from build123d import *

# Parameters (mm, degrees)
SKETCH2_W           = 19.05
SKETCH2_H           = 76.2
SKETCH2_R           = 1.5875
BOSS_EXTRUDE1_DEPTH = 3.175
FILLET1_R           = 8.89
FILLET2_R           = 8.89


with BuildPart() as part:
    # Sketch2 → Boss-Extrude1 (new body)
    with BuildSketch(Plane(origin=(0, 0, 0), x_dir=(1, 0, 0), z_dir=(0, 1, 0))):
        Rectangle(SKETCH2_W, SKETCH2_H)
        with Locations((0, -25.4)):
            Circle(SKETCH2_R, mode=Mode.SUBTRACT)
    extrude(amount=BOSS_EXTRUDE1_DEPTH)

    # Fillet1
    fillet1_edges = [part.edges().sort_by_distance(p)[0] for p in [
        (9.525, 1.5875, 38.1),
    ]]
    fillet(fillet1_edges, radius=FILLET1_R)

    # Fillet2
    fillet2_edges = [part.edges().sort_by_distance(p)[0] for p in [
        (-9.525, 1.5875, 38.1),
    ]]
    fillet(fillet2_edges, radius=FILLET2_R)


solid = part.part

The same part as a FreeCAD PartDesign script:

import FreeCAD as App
import Part
import Sketcher
from FreeCAD import Vector
Q = App.Units.Quantity


def edges_at(feature, points):
    """Names of the edges that pass closest to the given points."""
    edges = feature.Shape.Edges
    near = lambda p: min(range(len(edges)), key=lambda i: edges[i].distToShape(Part.Vertex(*p))[0])
    return sorted({f"Edge{near(p) + 1}" for p in points})


def add_polygon(sketch, points):
    """Adds a closed chain of lines whose ends are joined by coincident constraints."""
    first, n = sketch.GeometryCount, len(points)
    for a, b in zip(points, points[1:] + points[:1]):
        sketch.addGeometry(Part.LineSegment(App.Vector(*a, 0), App.Vector(*b, 0)), False)
    for i in range(n):
        sketch.addConstraint(Sketcher.Constraint("Coincident", first + i, 2, first + (i + 1) % n, 1))

doc = App.newDocument("Part")
params = doc.addObject("Spreadsheet::Sheet", "Params")
for row, (alias, value) in enumerate([
    ("sketch1_height", "3 in"),
    ("sketch1_diameter", "0.125 in"),
    ("sketch1_width", "0.75 in"),
    ("pad1_length", "0.125 in"),
    ("fillet_radius", "0.35 in"),
    ("fillet2_radius", "0.35 in"),
], start=1):
    params.set(f"A{row}", alias)
    params.set(f"B{row}", "=" + value)
    params.setAlias(f"B{row}", alias)

body = doc.addObject("PartDesign::Body", "Body")

# Sketch on XZ plane
sketch1 = body.newObject("Sketcher::SketchObject", "Sketch")
sketch1.AttachmentSupport = (doc.getObject("XZ_Plane"), [""])
sketch1.MapMode = "FlatFace"
add_polygon(sketch1, [(-9.5, -38.1), (-9.5, 38.1), (9.5, 38.1), (9.5, -38.1)])  # lines 0-3
sketch1.addGeometry(Part.Circle(Vector(0, 25.4, 0), Vector(0, 0, 1), 1.6), False)  # 4
sketch1.addConstraint(Sketcher.Constraint("Vertical", 0))
sketch1.addConstraint(Sketcher.Constraint("Horizontal", 1))
sketch1.addConstraint(Sketcher.Constraint("Vertical", 2))
sketch1.addConstraint(Sketcher.Constraint("Horizontal", 3))
sketch1.addConstraint(Sketcher.Constraint("Symmetric", 0, 2, 2, 2, -1, 1))
sketch1.addConstraint(Sketcher.Constraint("PointOnObject", 4, 3, -2))
sketch1.addConstraint(Sketcher.Constraint("DistanceY", 0, 1, 0, 2, Q("3 in")))
sketch1.addConstraint(Sketcher.Constraint("Diameter", 4, Q("0.125 in")))
sketch1.addConstraint(Sketcher.Constraint("DistanceY", -1, 1, 4, 3, Q("1 in")))
sketch1.addConstraint(Sketcher.Constraint("DistanceX", 1, 1, 1, 2, Q("0.75 in")))
sketch1.setExpression("Constraints[10]", "Params.sketch1_height")
sketch1.setExpression("Constraints[11]", "Params.sketch1_diameter")
sketch1.setExpression("Constraints[13]", "Params.sketch1_width")
pad1 = body.newObject("PartDesign::Pad", "Pad")
pad1.Profile = sketch1
pad1.setExpression("Length", "Params.pad1_length")
pad1.Reversed = True
doc.recompute()

fillet = body.newObject("PartDesign::Fillet", "Fillet")
fillet.Base = (pad1, edges_at(pad1, [(9.525, 1.587, 38.1)]))
fillet.setExpression("Radius", "Params.fillet_radius")
doc.recompute()

fillet2 = body.newObject("PartDesign::Fillet", "Fillet001")
fillet2.Base = (fillet, edges_at(fillet, [(-9.525, 1.587, 38.1)]))
fillet2.setExpression("Radius", "Params.fillet2_radius")

doc.recompute()
